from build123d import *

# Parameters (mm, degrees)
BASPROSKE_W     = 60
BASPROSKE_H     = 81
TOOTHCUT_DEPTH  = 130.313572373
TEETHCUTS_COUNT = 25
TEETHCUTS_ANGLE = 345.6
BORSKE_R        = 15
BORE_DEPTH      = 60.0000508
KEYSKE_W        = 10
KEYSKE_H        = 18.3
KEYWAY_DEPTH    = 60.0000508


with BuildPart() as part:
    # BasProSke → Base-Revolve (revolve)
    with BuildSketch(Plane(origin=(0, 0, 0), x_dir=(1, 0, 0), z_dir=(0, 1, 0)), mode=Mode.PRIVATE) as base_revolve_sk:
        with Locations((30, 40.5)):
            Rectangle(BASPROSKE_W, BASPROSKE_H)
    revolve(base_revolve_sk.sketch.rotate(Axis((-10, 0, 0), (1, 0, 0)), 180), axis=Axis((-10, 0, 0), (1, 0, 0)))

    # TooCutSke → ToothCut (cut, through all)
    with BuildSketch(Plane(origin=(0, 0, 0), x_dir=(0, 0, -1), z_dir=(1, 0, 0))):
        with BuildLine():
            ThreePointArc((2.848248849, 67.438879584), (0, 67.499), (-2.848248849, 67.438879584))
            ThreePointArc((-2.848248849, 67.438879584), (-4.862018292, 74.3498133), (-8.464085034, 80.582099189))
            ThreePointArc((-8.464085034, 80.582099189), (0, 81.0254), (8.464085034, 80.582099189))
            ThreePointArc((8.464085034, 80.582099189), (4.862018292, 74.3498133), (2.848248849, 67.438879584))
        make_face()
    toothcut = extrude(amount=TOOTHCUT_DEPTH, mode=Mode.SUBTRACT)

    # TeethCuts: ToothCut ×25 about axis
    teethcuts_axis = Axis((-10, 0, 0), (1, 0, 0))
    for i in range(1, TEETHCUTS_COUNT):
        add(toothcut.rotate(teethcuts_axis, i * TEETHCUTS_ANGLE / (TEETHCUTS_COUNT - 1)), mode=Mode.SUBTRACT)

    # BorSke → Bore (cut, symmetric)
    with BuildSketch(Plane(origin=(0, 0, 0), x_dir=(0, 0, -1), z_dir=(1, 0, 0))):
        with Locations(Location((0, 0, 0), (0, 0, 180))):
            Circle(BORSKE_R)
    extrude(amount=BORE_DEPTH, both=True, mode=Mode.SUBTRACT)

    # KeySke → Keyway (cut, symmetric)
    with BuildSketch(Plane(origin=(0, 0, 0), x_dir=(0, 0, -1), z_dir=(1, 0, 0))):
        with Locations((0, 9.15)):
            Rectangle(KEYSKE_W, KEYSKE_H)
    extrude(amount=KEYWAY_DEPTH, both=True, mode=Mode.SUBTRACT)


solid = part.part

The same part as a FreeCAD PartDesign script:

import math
import FreeCAD as App
import Part
import Sketcher
from FreeCAD import Vector
Q = App.Units.Quantity


def add_polygon(sketch, points):
    """Adds a closed chain of lines whose ends are joined by coincident constraints."""
    first, n = sketch.GeometryCount, len(points)
    for a, b in zip(points, points[1:] + points[:1]):
        sketch.addGeometry(Part.LineSegment(App.Vector(*a, 0), App.Vector(*b, 0)), False)
    for i in range(n):
        sketch.addConstraint(Sketcher.Constraint("Coincident", first + i, 2, first + (i + 1) % n, 1))

doc = App.newDocument("Part")
params = doc.addObject("Spreadsheet::Sheet", "Params")
for row, (alias, value) in enumerate([
    ("sketch1_width", "60 mm"),
    ("sketch1_height", "81 mm"),
    ("revolution_angle", "360 deg"),
    ("sketch2_radius", "30 mm"),
    ("sketch3_diameter", "30 mm"),
    ("pocket2_length", "120.000102 mm"),
    ("sketch4_height", "10 mm"),
    ("sketch4_width", "18.3 mm"),
    ("pocket3_length", "120.000102 mm"),
], start=1):
    params.set(f"A{row}", alias)
    params.set(f"B{row}", "=" + value)
    params.setAlias(f"B{row}", alias)

body = doc.addObject("PartDesign::Body", "Body")

# Sketch on XZ plane
sketch1 = body.newObject("Sketcher::SketchObject", "Sketch")
sketch1.AttachmentSupport = (doc.getObject("XZ_Plane"), [""])
sketch1.MapMode = "FlatFace"
add_polygon(sketch1, [(0, -81), (0, 0), (60, 0), (60, -81)])  # lines 0-3
sketch1.addConstraint([
    Sketcher.Constraint("Vertical", 0),
    Sketcher.Constraint("Horizontal", 1),
    Sketcher.Constraint("Vertical", 2),
    Sketcher.Constraint("Horizontal", 3),
    Sketcher.Constraint("Coincident", 0, 2, -1, 1),
    Sketcher.Constraint("DistanceX", 1, 1, 1, 2, Q("60 mm")),
    Sketcher.Constraint("DistanceY", 0, 1, 0, 2, Q("81 mm")),
])
sketch1.setExpression("Constraints[9]", "Params.sketch1_width")
sketch1.setExpression("Constraints[10]", "Params.sketch1_height")
revolution = body.newObject("PartDesign::Revolution", "Revolution")
revolution.Profile = sketch1
revolution.ReferenceAxis = (sketch1, ["H_Axis"])
revolution.setExpression("Angle", "Params.revolution_angle")

# Sketch on YZ plane
sketch2 = body.newObject("Sketcher::SketchObject", "Sketch001")
sketch2.AttachmentSupport = (doc.getObject("YZ_Plane"), [""])
sketch2.MapMode = "FlatFace"
sketch2.addGeometry([
    Part.ArcOfCircle(Part.Circle(Vector(0, 0, 0), Vector(0, 0, 1), 67), math.radians(-2.42), math.radians(2.42)),
    Part.ArcOfCircle(Part.Circle(Vector(63, -32, 0), Vector(0, 0, 1), 30), math.radians(53), math.radians(81)),
    Part.ArcOfCircle(Part.Circle(Vector(0, 0, 0), Vector(0, 0, 1), 81), math.radians(-6), math.radians(6)),
    Part.ArcOfCircle(Part.Circle(Vector(63, 32, 0), Vector(0, 0, 1), 30), math.radians(-81), math.radians(-53)),
], False)
sketch2.addConstraint([
    Sketcher.Constraint("Coincident", 0, 1, 1, 2),
    Sketcher.Constraint("Coincident", 1, 1, 2, 1),
    Sketcher.Constraint("Coincident", 2, 2, 3, 2),
    Sketcher.Constraint("Coincident", 3, 1, 0, 2),
    Sketcher.Constraint("Coincident", 0, 3, -1, 1),
    Sketcher.Constraint("Coincident", 2, 3, -1, 1),
    Sketcher.Constraint("Equal", 1, 3),
    Sketcher.Constraint("Symmetric", 1, 3, 3, 3, -1),
    Sketcher.Constraint("Radius", 1, Q("30 mm")),
    Sketcher.Constraint("Radius", 0, Q("67.499 mm")),
    Sketcher.Constraint("Radius", 2, Q("81.0254 mm")),
    Sketcher.Constraint("DistanceX", -1, 1, 1, 1, Q("80.582099 mm")),
    Sketcher.Constraint("DistanceY", 0, 1, 3, 3, Q("35.2975 mm")),
])
sketch2.setExpression("Constraints[8]", "Params.sketch2_radius")
pocket1 = body.newObject("PartDesign::Pocket", "Pocket")
pocket1.Profile = sketch2
pocket1.Type = "ThroughAll"
pocket1.Reversed = True
doc.recompute()

polarpattern = body.newObject("PartDesign::PolarPattern", "PolarPattern")
polarpattern.Originals = [pocket1]
polarpattern.Axis = (doc.getObject("X_Axis"), [""])
polarpattern.Angle = 360
polarpattern.Occurrences = 25
body.Tip = polarpattern

# Sketch on YZ plane
sketch3 = body.newObject("Sketcher::SketchObject", "Sketch002")
sketch3.AttachmentSupport = (doc.getObject("YZ_Plane"), [""])
sketch3.MapMode = "FlatFace"
sketch3.addGeometry(Part.Circle(Vector(0, 0, 0), Vector(0, 0, 1), 15), False)
sketch3.addConstraint([
    Sketcher.Constraint("Coincident", 0, 3, -1, 1),
    Sketcher.Constraint("Diameter", 0, Q("30 mm")),
])
sketch3.setExpression("Constraints[1]", "Params.sketch3_diameter")
pocket2 = body.newObject("PartDesign::Pocket", "Pocket001")
pocket2.Profile = sketch3
pocket2.setExpression("Length", "Params.pocket2_length")
pocket2.Midplane = True

# Sketch on YZ plane
sketch4 = body.newObject("Sketcher::SketchObject", "Sketch003")
sketch4.AttachmentSupport = (doc.getObject("YZ_Plane"), [""])
sketch4.MapMode = "FlatFace"
add_polygon(sketch4, [(18, 5), (0, 5), (0, -5), (18, -5)])  # lines 0-3
sketch4.addConstraint([
    Sketcher.Constraint("Horizontal", 0),
    Sketcher.Constraint("Vertical", 1),
    Sketcher.Constraint("Horizontal", 2),
    Sketcher.Constraint("Vertical", 3),
    Sketcher.Constraint("Symmetric", 0, 2, 1, 2, -1, 1),
    Sketcher.Constraint("DistanceY", 1, 2, 1, 1, Q("10 mm")),
    Sketcher.Constraint("DistanceX", 0, 2, 0, 1, Q("18.3 mm")),
])
sketch4.setExpression("Constraints[9]", "Params.sketch4_height")
sketch4.setExpression("Constraints[10]", "Params.sketch4_width")
pocket3 = body.newObject("PartDesign::Pocket", "Pocket002")
pocket3.Profile = sketch4
pocket3.setExpression("Length", "Params.pocket3_length")
pocket3.Midplane = True

doc.recompute()
